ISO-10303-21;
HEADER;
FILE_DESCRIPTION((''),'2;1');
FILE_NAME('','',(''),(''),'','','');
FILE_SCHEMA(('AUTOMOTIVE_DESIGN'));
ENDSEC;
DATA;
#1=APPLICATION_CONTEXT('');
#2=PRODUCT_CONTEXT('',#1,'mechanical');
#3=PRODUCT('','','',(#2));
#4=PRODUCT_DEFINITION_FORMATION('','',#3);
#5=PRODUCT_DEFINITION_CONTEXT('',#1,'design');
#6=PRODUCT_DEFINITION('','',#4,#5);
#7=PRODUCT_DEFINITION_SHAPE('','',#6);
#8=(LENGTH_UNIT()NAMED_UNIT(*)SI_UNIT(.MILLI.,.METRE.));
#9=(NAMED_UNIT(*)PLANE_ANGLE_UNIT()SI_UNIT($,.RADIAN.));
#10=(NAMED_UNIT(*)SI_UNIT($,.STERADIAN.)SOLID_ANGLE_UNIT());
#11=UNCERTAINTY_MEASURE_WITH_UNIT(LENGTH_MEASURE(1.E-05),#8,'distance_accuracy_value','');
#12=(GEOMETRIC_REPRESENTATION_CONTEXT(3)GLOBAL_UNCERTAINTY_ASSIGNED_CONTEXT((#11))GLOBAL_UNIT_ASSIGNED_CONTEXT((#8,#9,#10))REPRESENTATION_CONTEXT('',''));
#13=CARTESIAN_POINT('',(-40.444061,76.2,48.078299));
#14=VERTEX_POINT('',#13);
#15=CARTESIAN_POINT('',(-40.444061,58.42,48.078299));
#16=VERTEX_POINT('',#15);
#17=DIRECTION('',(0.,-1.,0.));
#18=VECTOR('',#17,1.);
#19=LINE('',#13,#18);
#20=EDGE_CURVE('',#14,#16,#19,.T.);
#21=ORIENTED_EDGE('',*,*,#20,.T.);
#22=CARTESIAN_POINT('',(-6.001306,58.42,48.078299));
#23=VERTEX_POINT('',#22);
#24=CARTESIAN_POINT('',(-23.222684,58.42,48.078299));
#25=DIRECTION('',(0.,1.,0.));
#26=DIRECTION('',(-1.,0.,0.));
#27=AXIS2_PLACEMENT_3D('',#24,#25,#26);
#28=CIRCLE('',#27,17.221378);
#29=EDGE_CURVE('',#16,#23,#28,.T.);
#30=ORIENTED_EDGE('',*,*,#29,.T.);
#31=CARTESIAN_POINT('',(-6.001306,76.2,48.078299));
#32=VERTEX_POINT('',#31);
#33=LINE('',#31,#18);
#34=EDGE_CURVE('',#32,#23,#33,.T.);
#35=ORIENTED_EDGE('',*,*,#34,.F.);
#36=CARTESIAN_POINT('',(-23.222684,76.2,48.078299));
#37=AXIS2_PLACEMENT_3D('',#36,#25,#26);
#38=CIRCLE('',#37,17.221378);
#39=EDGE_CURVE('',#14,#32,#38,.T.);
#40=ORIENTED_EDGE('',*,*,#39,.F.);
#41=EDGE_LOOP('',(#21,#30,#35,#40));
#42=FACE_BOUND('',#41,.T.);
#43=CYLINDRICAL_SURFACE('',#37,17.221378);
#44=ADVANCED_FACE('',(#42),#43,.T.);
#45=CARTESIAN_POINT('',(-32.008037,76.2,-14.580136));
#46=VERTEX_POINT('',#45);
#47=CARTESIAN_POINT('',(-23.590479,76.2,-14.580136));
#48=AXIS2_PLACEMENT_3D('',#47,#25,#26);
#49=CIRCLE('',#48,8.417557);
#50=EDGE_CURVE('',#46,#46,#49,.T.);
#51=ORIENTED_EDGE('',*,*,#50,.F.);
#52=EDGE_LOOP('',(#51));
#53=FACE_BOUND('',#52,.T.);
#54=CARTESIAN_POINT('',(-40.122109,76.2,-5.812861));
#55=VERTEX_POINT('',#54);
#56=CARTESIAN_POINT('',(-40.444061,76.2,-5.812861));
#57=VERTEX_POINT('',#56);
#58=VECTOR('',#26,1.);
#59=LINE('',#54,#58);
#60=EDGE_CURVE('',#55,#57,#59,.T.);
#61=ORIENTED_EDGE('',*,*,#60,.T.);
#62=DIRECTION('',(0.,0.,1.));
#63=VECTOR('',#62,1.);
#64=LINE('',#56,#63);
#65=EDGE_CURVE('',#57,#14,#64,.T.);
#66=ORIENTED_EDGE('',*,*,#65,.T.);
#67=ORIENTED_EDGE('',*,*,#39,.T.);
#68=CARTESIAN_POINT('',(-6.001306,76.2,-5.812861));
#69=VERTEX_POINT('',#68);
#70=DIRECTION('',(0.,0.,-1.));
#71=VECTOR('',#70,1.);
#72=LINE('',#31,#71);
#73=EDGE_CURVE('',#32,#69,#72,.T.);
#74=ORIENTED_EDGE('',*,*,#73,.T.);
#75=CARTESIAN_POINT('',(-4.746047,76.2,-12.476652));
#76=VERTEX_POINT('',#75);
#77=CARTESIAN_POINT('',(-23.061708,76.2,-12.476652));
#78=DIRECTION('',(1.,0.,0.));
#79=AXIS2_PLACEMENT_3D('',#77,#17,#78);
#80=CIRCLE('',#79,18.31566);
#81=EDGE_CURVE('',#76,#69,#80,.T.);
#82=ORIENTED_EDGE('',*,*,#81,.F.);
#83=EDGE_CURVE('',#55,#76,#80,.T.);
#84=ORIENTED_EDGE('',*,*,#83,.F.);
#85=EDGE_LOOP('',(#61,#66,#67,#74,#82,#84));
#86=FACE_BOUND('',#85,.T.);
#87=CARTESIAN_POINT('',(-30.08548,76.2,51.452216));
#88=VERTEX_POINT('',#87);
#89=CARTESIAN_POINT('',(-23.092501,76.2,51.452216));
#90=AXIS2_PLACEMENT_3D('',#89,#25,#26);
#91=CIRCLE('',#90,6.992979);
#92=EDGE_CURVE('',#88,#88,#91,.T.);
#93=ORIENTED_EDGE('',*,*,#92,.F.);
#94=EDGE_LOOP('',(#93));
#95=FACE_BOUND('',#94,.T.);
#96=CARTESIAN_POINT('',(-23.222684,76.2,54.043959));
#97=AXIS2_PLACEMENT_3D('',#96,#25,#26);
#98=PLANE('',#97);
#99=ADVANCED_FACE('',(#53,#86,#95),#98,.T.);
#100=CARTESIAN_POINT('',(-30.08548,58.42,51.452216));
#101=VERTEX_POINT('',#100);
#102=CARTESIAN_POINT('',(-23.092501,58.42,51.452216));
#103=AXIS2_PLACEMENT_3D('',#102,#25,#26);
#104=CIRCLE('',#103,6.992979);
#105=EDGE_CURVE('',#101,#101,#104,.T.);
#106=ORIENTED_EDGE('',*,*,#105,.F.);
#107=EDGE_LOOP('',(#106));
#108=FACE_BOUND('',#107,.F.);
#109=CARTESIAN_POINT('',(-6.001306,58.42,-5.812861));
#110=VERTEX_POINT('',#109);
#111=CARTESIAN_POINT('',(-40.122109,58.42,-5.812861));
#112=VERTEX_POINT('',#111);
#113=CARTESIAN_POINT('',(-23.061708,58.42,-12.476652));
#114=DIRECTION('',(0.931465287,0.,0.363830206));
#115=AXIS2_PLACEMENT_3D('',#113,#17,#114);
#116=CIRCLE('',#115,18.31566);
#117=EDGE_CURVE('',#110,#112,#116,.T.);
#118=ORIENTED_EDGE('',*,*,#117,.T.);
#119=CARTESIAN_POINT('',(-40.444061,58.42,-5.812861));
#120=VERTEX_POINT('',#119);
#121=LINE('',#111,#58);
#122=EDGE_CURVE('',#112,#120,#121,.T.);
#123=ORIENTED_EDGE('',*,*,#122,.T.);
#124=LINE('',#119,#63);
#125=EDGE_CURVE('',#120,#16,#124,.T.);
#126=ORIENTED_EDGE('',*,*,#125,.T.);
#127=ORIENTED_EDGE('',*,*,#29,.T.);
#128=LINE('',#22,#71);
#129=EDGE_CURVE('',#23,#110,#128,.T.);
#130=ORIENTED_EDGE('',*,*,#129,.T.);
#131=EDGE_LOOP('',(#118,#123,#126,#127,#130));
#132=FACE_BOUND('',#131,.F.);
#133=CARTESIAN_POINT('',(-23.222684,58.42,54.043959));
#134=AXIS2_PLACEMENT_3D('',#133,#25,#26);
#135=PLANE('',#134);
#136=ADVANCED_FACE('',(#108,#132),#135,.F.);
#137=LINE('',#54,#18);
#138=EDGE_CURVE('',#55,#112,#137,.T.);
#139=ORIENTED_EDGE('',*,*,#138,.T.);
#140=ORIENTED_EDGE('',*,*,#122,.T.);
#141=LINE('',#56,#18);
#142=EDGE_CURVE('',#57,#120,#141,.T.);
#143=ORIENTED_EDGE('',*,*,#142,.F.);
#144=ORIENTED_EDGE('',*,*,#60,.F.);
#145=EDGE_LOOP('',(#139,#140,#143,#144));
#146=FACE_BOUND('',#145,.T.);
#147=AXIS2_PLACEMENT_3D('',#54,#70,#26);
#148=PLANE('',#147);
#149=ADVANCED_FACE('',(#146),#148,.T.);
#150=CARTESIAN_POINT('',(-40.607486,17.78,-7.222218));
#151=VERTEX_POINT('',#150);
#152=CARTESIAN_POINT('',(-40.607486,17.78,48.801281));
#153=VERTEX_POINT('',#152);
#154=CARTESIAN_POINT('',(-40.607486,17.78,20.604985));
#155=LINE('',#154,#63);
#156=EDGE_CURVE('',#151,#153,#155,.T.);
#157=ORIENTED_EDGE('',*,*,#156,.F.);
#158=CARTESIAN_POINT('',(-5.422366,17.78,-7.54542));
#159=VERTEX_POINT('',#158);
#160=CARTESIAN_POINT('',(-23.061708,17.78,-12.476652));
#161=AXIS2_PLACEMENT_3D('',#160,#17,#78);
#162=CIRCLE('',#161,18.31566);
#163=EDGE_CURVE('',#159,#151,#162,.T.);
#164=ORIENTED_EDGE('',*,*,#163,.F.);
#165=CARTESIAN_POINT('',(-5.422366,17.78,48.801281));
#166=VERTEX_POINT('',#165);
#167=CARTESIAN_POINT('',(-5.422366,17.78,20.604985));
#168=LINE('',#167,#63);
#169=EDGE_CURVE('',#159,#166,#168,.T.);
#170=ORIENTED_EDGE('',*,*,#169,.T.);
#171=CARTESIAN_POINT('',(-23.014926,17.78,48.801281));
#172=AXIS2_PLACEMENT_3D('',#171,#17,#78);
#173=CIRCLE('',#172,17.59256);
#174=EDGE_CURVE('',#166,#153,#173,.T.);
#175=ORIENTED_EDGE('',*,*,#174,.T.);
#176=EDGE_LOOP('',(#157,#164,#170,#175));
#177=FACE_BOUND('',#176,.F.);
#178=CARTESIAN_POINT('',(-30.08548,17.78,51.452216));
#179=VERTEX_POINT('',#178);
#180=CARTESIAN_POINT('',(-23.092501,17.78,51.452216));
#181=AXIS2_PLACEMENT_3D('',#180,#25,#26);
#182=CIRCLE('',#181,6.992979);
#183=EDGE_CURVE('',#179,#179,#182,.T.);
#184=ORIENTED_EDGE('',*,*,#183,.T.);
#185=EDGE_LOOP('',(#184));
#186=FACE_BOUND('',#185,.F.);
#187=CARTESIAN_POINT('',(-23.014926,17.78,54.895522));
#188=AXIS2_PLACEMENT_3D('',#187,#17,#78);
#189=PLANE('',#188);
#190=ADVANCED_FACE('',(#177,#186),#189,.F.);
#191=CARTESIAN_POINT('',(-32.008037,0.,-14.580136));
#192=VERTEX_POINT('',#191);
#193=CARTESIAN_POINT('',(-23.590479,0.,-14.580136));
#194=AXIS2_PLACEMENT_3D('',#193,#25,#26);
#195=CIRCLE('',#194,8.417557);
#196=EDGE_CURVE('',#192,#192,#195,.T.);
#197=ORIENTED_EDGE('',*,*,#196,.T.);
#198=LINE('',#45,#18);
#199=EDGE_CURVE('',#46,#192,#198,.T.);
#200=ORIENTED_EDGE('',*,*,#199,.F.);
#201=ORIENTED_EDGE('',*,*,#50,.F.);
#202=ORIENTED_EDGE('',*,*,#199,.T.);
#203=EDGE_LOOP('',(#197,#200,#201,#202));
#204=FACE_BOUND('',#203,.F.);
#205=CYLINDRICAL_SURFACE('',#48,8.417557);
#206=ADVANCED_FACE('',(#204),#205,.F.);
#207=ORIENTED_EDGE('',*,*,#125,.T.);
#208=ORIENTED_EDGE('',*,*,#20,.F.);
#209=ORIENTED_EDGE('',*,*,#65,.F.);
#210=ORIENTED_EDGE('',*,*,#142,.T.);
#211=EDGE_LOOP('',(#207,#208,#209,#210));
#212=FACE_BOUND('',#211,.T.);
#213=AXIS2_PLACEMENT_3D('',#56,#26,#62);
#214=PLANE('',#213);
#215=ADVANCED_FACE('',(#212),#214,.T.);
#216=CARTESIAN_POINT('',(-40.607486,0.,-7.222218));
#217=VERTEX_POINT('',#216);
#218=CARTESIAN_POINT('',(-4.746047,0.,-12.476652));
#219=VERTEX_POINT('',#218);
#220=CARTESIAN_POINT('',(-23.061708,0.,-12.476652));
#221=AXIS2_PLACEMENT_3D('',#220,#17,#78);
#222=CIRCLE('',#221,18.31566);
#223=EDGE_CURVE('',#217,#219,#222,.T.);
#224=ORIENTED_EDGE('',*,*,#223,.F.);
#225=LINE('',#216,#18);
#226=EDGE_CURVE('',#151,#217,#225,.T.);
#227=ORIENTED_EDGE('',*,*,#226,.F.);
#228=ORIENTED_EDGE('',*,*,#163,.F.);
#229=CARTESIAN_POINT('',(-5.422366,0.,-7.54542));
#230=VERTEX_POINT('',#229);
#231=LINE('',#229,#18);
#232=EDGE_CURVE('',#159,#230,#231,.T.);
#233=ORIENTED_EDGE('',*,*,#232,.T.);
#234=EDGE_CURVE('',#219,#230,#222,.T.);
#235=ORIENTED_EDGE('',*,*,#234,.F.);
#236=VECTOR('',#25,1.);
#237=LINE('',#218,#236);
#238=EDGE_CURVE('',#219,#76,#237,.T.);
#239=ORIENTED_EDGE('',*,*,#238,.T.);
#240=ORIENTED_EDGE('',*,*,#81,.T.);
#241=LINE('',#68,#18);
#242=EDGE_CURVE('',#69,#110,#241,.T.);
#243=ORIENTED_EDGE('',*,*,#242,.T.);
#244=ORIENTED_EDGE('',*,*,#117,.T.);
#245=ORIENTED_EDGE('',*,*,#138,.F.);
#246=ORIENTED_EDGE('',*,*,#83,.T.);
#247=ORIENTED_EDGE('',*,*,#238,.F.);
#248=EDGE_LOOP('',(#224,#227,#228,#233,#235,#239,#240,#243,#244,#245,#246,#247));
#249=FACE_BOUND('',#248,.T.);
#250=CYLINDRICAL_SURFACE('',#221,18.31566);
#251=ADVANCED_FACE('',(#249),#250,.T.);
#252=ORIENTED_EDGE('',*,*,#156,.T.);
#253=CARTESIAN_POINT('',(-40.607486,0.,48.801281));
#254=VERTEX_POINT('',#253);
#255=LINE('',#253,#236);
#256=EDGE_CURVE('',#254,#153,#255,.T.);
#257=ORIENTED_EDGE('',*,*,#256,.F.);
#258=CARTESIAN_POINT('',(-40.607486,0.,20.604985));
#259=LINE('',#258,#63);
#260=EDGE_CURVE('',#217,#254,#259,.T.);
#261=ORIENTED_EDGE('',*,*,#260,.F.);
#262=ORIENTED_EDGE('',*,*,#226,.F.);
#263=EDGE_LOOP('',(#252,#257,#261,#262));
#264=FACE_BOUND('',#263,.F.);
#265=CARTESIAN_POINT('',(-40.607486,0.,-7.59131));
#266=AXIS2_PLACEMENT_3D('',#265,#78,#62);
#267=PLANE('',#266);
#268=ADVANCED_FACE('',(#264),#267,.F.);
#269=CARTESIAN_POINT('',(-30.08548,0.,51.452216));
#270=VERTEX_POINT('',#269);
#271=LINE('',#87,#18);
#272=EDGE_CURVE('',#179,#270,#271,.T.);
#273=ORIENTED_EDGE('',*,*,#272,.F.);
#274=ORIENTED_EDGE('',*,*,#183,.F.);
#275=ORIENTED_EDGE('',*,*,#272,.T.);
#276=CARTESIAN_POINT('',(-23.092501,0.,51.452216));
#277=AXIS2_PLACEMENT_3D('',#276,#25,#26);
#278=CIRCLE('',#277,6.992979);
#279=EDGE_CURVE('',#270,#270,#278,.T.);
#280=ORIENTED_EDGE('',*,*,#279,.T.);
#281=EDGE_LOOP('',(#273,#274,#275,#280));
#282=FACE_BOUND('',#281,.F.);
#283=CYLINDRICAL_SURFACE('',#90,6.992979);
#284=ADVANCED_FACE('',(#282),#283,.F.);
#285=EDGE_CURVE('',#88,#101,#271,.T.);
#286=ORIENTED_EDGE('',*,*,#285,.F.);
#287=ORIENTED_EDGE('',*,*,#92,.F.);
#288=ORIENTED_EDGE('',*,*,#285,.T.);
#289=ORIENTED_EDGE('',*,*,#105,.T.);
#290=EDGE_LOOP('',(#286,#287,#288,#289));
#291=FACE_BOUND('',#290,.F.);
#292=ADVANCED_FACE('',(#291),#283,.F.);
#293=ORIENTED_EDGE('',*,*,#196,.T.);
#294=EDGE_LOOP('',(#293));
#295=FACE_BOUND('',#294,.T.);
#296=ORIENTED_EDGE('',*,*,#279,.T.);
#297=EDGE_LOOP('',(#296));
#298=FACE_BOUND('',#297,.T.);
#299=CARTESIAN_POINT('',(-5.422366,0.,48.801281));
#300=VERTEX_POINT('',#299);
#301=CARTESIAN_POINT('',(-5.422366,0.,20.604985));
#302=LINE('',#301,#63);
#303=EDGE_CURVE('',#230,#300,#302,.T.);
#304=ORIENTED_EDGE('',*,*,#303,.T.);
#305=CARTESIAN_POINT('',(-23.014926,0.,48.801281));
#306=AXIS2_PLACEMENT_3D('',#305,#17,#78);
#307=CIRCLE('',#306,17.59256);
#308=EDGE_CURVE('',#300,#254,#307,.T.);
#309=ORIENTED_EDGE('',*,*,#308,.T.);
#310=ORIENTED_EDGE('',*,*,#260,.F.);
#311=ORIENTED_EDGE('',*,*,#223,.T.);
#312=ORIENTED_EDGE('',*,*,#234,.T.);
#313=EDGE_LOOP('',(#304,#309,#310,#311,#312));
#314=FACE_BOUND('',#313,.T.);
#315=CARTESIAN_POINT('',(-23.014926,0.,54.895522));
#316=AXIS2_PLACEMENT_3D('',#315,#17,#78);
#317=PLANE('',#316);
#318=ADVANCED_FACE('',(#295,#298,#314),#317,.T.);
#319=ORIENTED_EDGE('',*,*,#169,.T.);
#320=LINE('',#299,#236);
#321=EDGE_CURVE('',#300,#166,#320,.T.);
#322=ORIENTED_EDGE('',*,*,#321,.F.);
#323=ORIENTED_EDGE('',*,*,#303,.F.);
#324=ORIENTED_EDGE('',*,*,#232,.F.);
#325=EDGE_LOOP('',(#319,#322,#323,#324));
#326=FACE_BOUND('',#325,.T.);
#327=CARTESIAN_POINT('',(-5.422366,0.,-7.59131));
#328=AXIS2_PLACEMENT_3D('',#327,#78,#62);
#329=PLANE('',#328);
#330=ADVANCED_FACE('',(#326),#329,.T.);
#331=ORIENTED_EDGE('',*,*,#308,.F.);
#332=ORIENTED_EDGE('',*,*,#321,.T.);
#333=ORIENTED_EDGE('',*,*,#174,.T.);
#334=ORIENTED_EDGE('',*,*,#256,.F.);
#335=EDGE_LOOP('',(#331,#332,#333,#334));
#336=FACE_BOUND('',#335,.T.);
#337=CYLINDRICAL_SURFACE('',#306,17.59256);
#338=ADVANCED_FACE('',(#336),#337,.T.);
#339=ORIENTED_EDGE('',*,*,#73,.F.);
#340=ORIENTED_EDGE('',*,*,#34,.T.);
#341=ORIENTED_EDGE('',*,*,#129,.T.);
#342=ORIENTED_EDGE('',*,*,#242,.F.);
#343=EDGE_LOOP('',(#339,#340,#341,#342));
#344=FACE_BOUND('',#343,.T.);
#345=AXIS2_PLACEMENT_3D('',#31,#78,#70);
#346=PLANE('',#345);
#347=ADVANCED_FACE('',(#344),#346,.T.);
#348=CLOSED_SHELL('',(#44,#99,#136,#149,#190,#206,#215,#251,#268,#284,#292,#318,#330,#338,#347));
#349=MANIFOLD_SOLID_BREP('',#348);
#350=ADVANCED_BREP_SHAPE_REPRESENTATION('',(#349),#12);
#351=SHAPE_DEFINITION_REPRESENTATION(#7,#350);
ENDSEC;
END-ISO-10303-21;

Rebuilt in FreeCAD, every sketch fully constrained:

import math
import FreeCAD as App
import Part
import Sketcher
from FreeCAD import Vector
Q = App.Units.Quantity

doc = App.newDocument("Part")
body = doc.addObject("PartDesign::Body", "Body")

# Sketch on XZ plane
sketch1 = body.newObject("Sketcher::SketchObject", "Sketch")
sketch1.AttachmentSupport = (doc.getObject("XZ_Plane"), [""])
sketch1.MapMode = "FlatFace"
sketch1.addGeometry(Part.Circle(Vector(-23.061708, -12.476652, 0), Vector(0, 0, 1), 18.31566), False)
sketch1.addConstraint(Sketcher.Constraint("Diameter", 0, 36.631321))
sketch1.addConstraint(Sketcher.Constraint("DistanceY", 0, 3, -1, 1, 12.476652))
sketch1.addConstraint(Sketcher.Constraint("DistanceX", 0, 3, -1, 1, 23.061708))
pad1 = body.newObject("PartDesign::Pad", "Pad")
pad1.Profile = sketch1
pad1.Length = Q("3 in")
pad1.Reversed = True

# Sketch on XZ plane
sketch2 = body.newObject("Sketcher::SketchObject", "Sketch001")
sketch2.AttachmentSupport = (doc.getObject("XZ_Plane"), [""])
sketch2.MapMode = "FlatFace"
sketch2.addGeometry(Part.LineSegment(Vector(-40.607486, 48.801281, 0), Vector(-40.607486, -7.59131, 0)), False)
sketch2.addGeometry(Part.LineSegment(Vector(-40.607486, -7.59131, 0), Vector(-5.422366, -7.59131, 0)), False)
sketch2.addGeometry(Part.LineSegment(Vector(-5.422366, -7.59131, 0), Vector(-5.422366, 48.801281, 0)), False)
sketch2.addGeometry(Part.LineSegment(Vector(-5.422366, 48.801281, 0), Vector(-40.607486, 48.801281, 0)), False)
sketch2.addConstraint(Sketcher.Constraint("Coincident", 0, 2, 1, 1))
sketch2.addConstraint(Sketcher.Constraint("Coincident", 1, 2, 2, 1))
sketch2.addConstraint(Sketcher.Constraint("Coincident", 2, 2, 3, 1))
sketch2.addConstraint(Sketcher.Constraint("Coincident", 3, 2, 0, 1))
sketch2.addConstraint(Sketcher.Constraint("Vertical", 0))
sketch2.addConstraint(Sketcher.Constraint("Horizontal", 1))
sketch2.addConstraint(Sketcher.Constraint("Vertical", 2))
sketch2.addConstraint(Sketcher.Constraint("Horizontal", 3))
sketch2.addConstraint(Sketcher.Constraint("DistanceX", 1, 1, 1, 2, 35.18512))
sketch2.addConstraint(Sketcher.Constraint("DistanceY", 0, 2, 0, 1, 56.392591))
sketch2.addConstraint(Sketcher.Constraint("DistanceY", 0, 2, -1, 1, 7.59131))
sketch2.addConstraint(Sketcher.Constraint("DistanceX", 0, 2, -1, 1, 40.607486))
pad2 = body.newObject("PartDesign::Pad", "Pad001")
pad2.Profile = sketch2
pad2.Length = Q("0.7 in")
pad2.Reversed = True

# Sketch on XZ plane
sketch3 = body.newObject("Sketcher::SketchObject", "Sketch002")
sketch3.AttachmentSupport = (doc.getObject("XZ_Plane"), [""])
sketch3.MapMode = "FlatFace"
sketch3.AttachmentOffset = App.Placement(Vector(0, 0, -3 * 25.4), App.Rotation())
sketch3.addGeometry(Part.LineSegment(Vector(-6.001306, 48.078299, 0), Vector(-6.001306, -5.812861, 0)), False)
sketch3.addGeometry(Part.ArcOfCircle(Part.Circle(Vector(-23.061708, -12.476652, 0), Vector(0, 0, 1), 18.31566), math.radians(21.335609), math.radians(158.664391)), False)
sketch3.addGeometry(Part.LineSegment(Vector(-40.122109, -5.812861, 0), Vector(-40.444061, -5.812861, 0)), False)
sketch3.addGeometry(Part.LineSegment(Vector(-40.444061, -5.812861, 0), Vector(-40.444061, 48.078299, 0)), False)
sketch3.addGeometry(Part.LineSegment(Vector(-40.444061, 48.078299, 0), Vector(-6.001306, 48.078299, 0)), False)
sketch3.addConstraint(Sketcher.Constraint("Coincident", 0, 2, 1, 1))
sketch3.addConstraint(Sketcher.Constraint("Coincident", 1, 2, 2, 1))
sketch3.addConstraint(Sketcher.Constraint("Coincident", 2, 2, 3, 1))
sketch3.addConstraint(Sketcher.Constraint("Coincident", 3, 2, 4, 1))
sketch3.addConstraint(Sketcher.Constraint("Coincident", 4, 2, 0, 1))
sketch3.addConstraint(Sketcher.Constraint("Vertical", 0))
sketch3.addConstraint(Sketcher.Constraint("Horizontal", 2))
sketch3.addConstraint(Sketcher.Constraint("Vertical", 3))
sketch3.addConstraint(Sketcher.Constraint("Horizontal", 4))
sketch3.addConstraint(Sketcher.Constraint("Horizontal", 0, 2, 1, 2))
sketch3.addConstraint(Sketcher.Constraint("Radius", 1, 18.31566))
sketch3.addConstraint(Sketcher.Constraint("DistanceX", 2, 2, 2, 1, 0.321952))
sketch3.addConstraint(Sketcher.Constraint("DistanceY", 0, 2, 0, 1, 53.89116))
sketch3.addConstraint(Sketcher.Constraint("DistanceY", -1, 1, 3, 2, 48.078299))
sketch3.addConstraint(Sketcher.Constraint("DistanceX", 1, 3, 0, 2, 17.060402))
sketch3.addConstraint(Sketcher.Constraint("DistanceX", 1, 2, -1, 1, 40.122109))
pad3 = body.newObject("PartDesign::Pad", "Pad002")
pad3.Profile = sketch3
pad3.Length = Q("0.7 in")

# Sketch on XZ plane
sketch4 = body.newObject("Sketcher::SketchObject", "Sketch003")
sketch4.AttachmentSupport = (doc.getObject("XZ_Plane"), [""])
sketch4.MapMode = "FlatFace"
sketch4.addGeometry(Part.LineSegment(Vector(-40.607486, 48.801281, 0), Vector(-5.422366, 48.801281, 0)), False)
sketch4.addGeometry(Part.ArcOfCircle(Part.Circle(Vector(-23.014926, 48.801281, 0), Vector(0, 0, 1), 17.59256), math.radians(0), math.radians(180)), False)
sketch4.addConstraint(Sketcher.Constraint("Coincident", 0, 1, 1, 2))
sketch4.addConstraint(Sketcher.Constraint("Coincident", 1, 1, 0, 2))
sketch4.addConstraint(Sketcher.Constraint("Horizontal", 0))
sketch4.addConstraint(Sketcher.Constraint("Horizontal", 1, 3, 0, 1))
sketch4.addConstraint(Sketcher.Constraint("Radius", 1, 17.59256))
sketch4.addConstraint(Sketcher.Constraint("DistanceY", -1, 1, 1, 3, 48.801281))
sketch4.addConstraint(Sketcher.Constraint("DistanceX", 1, 3, -1, 1, 23.014926))
pad4 = body.newObject("PartDesign::Pad", "Pad003")
pad4.Profile = sketch4
pad4.Length = Q("0.7 in")
pad4.Reversed = True

# Sketch on XZ plane
sketch5 = body.newObject("Sketcher::SketchObject", "Sketch004")
sketch5.AttachmentSupport = (doc.getObject("XZ_Plane"), [""])
sketch5.MapMode = "FlatFace"
sketch5.AttachmentOffset = App.Placement(Vector(0, 0, -3 * 25.4), App.Rotation())
sketch5.addGeometry(Part.LineSegment(Vector(-6.001306, 48.078299, 0), Vector(-40.444061, 48.078299, 0)), False)
sketch5.addGeometry(Part.ArcOfCircle(Part.Circle(Vector(-23.222684, 48.078299, 0), Vector(0, 0, 1), 17.221378), math.radians(0), math.radians(180)), False)
sketch5.addConstraint(Sketcher.Constraint("Coincident", 0, 1, 1, 1))
sketch5.addConstraint(Sketcher.Constraint("Coincident", 1, 2, 0, 2))
sketch5.addConstraint(Sketcher.Constraint("Horizontal", 0))
sketch5.addConstraint(Sketcher.Constraint("Horizontal", 1, 3, 0, 1))
sketch5.addConstraint(Sketcher.Constraint("Radius", 1, 17.221378))
sketch5.addConstraint(Sketcher.Constraint("DistanceY", -1, 1, 1, 3, 48.078299))
sketch5.addConstraint(Sketcher.Constraint("DistanceX", 1, 2, -1, 1, 40.444061))
pad5 = body.newObject("PartDesign::Pad", "Pad004")
pad5.Profile = sketch5
pad5.Length = Q("0.7 in")

# Sketch on XZ plane
sketch6 = body.newObject("Sketcher::SketchObject", "Sketch005")
sketch6.AttachmentSupport = (doc.getObject("XZ_Plane"), [""])
sketch6.MapMode = "FlatFace"
sketch6.AttachmentOffset = App.Placement(Vector(0, 0, -3 * 25.4), App.Rotation())
sketch6.addGeometry(Part.Circle(Vector(-23.092501, 51.452216, 0), Vector(0, 0, 1), 6.992979), False)
sketch6.addConstraint(Sketcher.Constraint("Diameter", 0, 13.985958))
sketch6.addConstraint(Sketcher.Constraint("DistanceX", 0, 3, -1, 1, 23.092501))
sketch6.addConstraint(Sketcher.Constraint("DistanceY", -1, 1, 0, 3, 51.452216))
pocket1 = body.newObject("PartDesign::Pocket", "Pocket")
pocket1.Profile = sketch6
pocket1.Length = Q("5 in")
pocket1.Reversed = True

# Sketch on XZ plane
sketch7 = body.newObject("Sketcher::SketchObject", "Sketch006")
sketch7.AttachmentSupport = (doc.getObject("XZ_Plane"), [""])
sketch7.MapMode = "FlatFace"
sketch7.AttachmentOffset = App.Placement(Vector(0, 0, -3 * 25.4), App.Rotation())
sketch7.addGeometry(Part.Circle(Vector(-23.590479, -14.580136, 0), Vector(0, 0, 1), 8.417557), False)
sketch7.addConstraint(Sketcher.Constraint("Diameter", 0, Q("0.6627998 in")))
sketch7.addConstraint(Sketcher.Constraint("DistanceX", 0, 3, -1, 1, 23.590479))
sketch7.addConstraint(Sketcher.Constraint("DistanceY", 0, 3, -1, 1, 14.580136))
pocket2 = body.newObject("PartDesign::Pocket", "Pocket001")
pocket2.Profile = sketch7
pocket2.Length = Q("5 in")
pocket2.Reversed = True

doc.recompute()
